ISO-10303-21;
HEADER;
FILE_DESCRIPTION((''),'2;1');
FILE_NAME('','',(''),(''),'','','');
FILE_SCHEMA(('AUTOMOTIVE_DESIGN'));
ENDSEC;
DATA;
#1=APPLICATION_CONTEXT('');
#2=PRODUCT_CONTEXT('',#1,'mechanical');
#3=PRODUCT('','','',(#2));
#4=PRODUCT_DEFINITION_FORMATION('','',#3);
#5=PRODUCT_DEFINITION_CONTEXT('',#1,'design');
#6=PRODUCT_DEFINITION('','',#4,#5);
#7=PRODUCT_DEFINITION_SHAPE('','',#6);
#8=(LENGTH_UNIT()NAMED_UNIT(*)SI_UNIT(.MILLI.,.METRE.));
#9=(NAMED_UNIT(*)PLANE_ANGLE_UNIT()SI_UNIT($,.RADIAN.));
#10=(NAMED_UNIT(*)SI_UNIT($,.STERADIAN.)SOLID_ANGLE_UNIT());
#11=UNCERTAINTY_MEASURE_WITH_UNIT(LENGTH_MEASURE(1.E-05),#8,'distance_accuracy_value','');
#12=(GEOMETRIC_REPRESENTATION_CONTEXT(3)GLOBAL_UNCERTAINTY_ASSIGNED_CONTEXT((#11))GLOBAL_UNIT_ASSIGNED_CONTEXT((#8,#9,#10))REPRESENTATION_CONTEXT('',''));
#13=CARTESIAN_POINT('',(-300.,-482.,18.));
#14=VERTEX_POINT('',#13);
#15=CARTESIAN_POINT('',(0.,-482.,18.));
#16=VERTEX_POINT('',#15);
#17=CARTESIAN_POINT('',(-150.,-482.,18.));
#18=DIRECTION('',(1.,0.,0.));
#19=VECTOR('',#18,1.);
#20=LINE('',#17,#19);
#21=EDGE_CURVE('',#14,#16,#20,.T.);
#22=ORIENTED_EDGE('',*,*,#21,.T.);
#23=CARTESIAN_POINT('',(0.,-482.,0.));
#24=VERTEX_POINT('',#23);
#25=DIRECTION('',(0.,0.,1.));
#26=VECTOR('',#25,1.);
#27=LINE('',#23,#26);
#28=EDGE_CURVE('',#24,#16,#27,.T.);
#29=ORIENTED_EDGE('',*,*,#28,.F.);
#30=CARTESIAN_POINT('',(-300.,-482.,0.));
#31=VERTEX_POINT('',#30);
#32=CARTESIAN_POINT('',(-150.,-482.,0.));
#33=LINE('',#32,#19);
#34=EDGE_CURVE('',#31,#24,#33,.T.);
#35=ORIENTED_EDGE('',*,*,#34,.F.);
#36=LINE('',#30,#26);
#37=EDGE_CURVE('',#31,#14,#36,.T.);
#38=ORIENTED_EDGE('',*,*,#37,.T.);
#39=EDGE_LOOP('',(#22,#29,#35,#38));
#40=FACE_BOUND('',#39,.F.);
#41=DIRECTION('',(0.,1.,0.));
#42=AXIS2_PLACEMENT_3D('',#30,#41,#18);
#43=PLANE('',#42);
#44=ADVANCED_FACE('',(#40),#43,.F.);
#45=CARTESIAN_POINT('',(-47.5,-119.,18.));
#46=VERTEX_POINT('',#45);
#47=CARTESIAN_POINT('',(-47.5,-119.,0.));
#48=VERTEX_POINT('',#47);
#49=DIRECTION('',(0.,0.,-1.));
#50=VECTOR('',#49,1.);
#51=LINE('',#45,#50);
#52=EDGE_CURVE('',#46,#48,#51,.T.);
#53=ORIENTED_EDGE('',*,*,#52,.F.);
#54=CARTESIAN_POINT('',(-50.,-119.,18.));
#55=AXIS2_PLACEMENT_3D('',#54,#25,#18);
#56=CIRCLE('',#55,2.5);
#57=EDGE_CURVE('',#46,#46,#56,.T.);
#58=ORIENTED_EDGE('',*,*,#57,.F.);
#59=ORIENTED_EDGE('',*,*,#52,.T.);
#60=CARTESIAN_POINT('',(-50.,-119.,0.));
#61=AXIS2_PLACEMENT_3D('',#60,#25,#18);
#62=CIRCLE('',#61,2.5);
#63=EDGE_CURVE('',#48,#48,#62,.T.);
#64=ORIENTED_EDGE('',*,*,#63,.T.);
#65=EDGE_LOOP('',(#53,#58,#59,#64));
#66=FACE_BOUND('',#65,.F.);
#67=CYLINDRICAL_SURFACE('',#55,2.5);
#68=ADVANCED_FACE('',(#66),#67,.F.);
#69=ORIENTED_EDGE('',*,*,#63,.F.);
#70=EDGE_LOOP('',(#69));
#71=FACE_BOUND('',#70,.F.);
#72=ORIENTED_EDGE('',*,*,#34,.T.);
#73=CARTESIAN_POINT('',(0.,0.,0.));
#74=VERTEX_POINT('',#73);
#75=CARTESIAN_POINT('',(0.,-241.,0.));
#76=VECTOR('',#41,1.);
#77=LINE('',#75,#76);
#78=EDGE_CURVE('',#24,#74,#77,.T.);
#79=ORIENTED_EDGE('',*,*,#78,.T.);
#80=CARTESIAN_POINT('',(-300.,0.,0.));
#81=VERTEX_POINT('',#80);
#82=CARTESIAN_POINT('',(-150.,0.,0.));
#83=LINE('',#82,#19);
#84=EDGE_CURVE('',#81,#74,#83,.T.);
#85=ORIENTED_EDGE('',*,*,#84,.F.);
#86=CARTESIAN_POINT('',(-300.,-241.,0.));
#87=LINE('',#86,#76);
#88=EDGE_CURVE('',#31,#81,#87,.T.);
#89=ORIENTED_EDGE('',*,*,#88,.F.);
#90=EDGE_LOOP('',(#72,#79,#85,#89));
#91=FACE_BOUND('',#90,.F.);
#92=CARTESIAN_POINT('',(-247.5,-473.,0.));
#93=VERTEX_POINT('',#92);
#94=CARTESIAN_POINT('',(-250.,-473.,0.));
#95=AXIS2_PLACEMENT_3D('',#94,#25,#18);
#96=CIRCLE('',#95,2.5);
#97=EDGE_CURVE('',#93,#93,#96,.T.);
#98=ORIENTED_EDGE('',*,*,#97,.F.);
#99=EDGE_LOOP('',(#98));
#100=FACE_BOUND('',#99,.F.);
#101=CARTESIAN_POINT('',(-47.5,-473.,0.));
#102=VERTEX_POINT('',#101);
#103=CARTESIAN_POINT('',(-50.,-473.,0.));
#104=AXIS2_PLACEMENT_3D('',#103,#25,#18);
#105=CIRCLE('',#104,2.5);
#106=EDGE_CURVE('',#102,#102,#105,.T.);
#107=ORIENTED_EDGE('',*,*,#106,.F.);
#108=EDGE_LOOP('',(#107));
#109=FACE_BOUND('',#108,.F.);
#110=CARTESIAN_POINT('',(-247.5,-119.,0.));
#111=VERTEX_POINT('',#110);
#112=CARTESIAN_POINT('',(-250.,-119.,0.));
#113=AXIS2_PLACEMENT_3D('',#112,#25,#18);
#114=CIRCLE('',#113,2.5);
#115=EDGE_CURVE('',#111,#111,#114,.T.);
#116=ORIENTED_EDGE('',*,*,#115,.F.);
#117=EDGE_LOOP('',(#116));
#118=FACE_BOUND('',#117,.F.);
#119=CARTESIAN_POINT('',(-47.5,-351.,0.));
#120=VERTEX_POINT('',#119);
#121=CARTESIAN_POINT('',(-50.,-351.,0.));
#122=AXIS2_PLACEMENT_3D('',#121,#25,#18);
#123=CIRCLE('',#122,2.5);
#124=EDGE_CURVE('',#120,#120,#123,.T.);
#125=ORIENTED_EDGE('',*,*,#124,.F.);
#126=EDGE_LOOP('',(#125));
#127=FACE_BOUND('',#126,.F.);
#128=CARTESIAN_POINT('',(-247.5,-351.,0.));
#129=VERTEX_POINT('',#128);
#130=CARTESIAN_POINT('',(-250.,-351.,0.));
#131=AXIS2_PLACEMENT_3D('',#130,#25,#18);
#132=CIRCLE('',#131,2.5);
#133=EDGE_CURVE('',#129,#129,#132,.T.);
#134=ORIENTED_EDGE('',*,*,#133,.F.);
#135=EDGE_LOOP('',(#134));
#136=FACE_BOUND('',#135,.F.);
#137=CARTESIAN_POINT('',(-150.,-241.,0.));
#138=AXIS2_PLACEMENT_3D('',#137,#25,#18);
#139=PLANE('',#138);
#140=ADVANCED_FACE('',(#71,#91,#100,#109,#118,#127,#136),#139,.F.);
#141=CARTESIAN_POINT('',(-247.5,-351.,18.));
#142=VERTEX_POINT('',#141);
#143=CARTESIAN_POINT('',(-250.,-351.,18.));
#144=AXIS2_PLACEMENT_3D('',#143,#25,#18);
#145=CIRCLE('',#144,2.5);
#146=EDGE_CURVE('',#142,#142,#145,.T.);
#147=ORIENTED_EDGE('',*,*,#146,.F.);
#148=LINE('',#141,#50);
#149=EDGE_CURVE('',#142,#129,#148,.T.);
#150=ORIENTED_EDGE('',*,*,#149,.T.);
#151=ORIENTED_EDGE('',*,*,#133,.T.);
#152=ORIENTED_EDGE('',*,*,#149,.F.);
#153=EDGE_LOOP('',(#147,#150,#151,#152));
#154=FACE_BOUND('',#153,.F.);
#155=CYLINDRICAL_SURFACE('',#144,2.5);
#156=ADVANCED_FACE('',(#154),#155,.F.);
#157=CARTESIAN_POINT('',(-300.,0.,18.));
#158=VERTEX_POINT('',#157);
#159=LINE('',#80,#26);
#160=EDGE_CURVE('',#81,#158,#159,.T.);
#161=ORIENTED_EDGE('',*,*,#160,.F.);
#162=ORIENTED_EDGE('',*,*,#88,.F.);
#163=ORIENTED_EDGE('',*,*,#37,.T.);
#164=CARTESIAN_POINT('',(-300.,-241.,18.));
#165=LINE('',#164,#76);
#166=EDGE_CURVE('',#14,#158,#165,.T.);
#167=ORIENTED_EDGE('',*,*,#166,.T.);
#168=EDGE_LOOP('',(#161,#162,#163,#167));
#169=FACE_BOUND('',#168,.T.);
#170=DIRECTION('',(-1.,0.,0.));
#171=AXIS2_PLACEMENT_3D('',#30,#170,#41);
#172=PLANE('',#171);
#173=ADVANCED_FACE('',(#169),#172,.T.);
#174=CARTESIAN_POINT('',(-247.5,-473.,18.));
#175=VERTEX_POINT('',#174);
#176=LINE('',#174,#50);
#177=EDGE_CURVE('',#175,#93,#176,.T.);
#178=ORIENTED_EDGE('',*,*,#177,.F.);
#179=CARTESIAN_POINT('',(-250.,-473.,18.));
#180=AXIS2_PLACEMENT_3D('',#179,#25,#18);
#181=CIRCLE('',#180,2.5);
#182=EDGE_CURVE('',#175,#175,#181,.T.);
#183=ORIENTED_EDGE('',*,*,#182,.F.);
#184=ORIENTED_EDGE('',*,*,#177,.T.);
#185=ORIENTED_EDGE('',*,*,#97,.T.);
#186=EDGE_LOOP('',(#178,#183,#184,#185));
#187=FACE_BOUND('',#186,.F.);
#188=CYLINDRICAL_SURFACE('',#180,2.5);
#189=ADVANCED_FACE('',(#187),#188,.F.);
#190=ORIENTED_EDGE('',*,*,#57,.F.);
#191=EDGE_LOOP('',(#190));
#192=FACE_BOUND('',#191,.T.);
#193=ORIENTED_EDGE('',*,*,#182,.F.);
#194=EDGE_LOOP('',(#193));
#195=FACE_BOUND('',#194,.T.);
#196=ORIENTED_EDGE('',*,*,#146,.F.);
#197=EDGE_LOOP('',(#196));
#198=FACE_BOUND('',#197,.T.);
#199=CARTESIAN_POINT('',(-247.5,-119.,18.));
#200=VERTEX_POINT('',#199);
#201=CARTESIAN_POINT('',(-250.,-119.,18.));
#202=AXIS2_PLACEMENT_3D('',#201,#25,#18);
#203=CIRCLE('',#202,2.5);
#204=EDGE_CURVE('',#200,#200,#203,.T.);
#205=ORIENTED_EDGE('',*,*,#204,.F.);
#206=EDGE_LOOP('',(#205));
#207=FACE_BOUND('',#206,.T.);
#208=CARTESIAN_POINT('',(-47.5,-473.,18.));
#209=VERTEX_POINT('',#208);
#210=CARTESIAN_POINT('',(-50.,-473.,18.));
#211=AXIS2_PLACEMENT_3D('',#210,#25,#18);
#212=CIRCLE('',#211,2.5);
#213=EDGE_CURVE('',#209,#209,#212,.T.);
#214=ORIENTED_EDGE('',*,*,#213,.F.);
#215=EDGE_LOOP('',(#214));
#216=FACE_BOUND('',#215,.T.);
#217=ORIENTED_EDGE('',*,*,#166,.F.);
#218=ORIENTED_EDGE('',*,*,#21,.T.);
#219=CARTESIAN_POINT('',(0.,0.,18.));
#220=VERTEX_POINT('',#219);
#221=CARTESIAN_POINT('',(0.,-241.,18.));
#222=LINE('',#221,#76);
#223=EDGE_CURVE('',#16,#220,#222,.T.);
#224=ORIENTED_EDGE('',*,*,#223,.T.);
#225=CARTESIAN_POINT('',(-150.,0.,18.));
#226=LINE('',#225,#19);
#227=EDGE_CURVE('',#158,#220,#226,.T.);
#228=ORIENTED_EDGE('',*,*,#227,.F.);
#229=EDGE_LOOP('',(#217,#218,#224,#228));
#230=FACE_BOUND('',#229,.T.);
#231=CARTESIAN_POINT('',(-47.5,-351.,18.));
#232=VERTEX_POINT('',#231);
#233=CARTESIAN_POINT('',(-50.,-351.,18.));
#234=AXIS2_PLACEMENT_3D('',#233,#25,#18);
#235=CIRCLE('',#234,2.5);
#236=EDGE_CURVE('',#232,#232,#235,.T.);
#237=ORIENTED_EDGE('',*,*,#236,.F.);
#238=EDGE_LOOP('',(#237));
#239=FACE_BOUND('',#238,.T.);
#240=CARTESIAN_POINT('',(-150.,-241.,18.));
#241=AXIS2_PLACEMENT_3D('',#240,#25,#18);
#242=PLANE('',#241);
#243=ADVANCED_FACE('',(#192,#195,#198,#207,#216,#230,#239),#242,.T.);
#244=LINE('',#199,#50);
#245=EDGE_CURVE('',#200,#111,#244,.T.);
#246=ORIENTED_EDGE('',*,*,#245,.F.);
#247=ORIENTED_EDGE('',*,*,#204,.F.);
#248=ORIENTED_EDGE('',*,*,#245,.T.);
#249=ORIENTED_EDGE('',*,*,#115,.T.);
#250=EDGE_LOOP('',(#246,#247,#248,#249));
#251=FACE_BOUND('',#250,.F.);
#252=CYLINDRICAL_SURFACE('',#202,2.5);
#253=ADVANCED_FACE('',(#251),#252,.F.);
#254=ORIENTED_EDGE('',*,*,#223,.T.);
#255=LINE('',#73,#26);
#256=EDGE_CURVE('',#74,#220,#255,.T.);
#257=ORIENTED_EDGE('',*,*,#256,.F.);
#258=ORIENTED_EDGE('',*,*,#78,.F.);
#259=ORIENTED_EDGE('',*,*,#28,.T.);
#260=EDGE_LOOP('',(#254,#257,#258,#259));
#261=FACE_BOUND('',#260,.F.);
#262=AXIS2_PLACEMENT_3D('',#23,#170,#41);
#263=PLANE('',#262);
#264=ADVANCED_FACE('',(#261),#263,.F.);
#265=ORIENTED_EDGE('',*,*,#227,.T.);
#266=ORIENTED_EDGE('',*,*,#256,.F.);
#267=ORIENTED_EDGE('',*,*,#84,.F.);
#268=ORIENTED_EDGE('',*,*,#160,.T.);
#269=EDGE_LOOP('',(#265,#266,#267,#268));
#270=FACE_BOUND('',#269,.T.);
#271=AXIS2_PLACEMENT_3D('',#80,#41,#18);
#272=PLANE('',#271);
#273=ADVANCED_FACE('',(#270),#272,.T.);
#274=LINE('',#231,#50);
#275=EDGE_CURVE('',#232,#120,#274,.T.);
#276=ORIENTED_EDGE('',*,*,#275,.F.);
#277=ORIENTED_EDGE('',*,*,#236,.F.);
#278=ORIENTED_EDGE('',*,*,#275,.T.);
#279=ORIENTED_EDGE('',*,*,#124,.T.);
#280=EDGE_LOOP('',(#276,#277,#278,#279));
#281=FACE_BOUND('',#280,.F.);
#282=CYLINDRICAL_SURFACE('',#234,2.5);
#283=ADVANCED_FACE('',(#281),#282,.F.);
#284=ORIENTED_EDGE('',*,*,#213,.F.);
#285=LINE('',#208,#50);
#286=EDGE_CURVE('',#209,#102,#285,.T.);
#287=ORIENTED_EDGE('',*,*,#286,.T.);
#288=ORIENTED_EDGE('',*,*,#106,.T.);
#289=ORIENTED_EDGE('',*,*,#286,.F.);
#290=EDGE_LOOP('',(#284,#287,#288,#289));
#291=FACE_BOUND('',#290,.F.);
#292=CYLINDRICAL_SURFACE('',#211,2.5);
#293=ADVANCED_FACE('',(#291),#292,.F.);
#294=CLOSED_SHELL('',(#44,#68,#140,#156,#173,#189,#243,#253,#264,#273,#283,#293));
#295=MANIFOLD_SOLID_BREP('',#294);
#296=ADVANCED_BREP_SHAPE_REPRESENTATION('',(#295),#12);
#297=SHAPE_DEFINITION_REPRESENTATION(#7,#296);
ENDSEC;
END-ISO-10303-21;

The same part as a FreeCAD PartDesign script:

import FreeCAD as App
import Part
import Sketcher


def add_polygon(sketch, points):
    """Adds a closed chain of lines whose ends are joined by coincident constraints."""
    first, n = sketch.GeometryCount, len(points)
    for a, b in zip(points, points[1:] + points[:1]):
        sketch.addGeometry(Part.LineSegment(App.Vector(*a, 0), App.Vector(*b, 0)), False)
    for i in range(n):
        sketch.addConstraint(Sketcher.Constraint("Coincident", first + i, 2, first + (i + 1) % n, 1))

doc = App.newDocument("Part")
body = doc.addObject("PartDesign::Body", "Body")

# Sketch on XY plane
sketch1 = doc.addObject("Sketcher::SketchObject", "Sketch")
body.addObject(sketch1)
sketch1.AttachmentSupport = (doc.XY_Plane, [""])
sketch1.MapMode = "FlatFace"
add_polygon(sketch1, [(-300, 0), (-300, -482), (0, -482), (0, 0)])  # lines 0-3
sketch1.addConstraint([
    Sketcher.Constraint("Vertical", 0),
    Sketcher.Constraint("Horizontal", 1),
    Sketcher.Constraint("Vertical", 2),
    Sketcher.Constraint("Horizontal", 3),
    Sketcher.Constraint("Coincident", 2, 2, -1, 1),
    Sketcher.Constraint("DistanceX", 1, 1, 1, 2, 300.0),
    Sketcher.Constraint("DistanceY", 0, 2, 0, 1, 482.0),
])
pad1 = doc.addObject("PartDesign::Pad", "Pad")
body.addObject(pad1)
pad1.Profile = sketch1
pad1.Length = 18

# Sketch on XY plane
sketch2 = doc.addObject("Sketcher::SketchObject", "Sketch001")
body.addObject(sketch2)
sketch2.AttachmentSupport = (doc.XY_Plane, [""])
sketch2.MapMode = "FlatFace"
sketch2.AttachmentOffset = App.Placement(App.Vector(0, 0, 18), App.Rotation())
sketch2.addGeometry([
    Part.Circle(App.Vector(-250, -119, 0), App.Vector(0, 0, 1), 2.5),  # 0
    Part.Circle(App.Vector(-50, -119, 0), App.Vector(0, 0, 1), 2.5),  # 1
    Part.Circle(App.Vector(-250, -351, 0), App.Vector(0, 0, 1), 2.5),  # 2
    Part.Circle(App.Vector(-50, -351, 0), App.Vector(0, 0, 1), 2.5),  # 3
    Part.Circle(App.Vector(-250, -473, 0), App.Vector(0, 0, 1), 2.5),  # 4
    Part.Circle(App.Vector(-50, -473, 0), App.Vector(0, 0, 1), 2.5),  # 5
], False)
sketch2.addConstraint([
    Sketcher.Constraint("Equal", 0, 1),
    Sketcher.Constraint("Equal", 1, 2),
    Sketcher.Constraint("Equal", 2, 3),
    Sketcher.Constraint("Equal", 3, 4),
    Sketcher.Constraint("Equal", 4, 5),
    Sketcher.Constraint("Horizontal", 0, 3, 1, 3),
    Sketcher.Constraint("Horizontal", 2, 3, 3, 3),
    Sketcher.Constraint("Horizontal", 4, 3, 5, 3),
    Sketcher.Constraint("Vertical", 0, 3, 2, 3),
    Sketcher.Constraint("Vertical", 1, 3, 3, 3),
    Sketcher.Constraint("Vertical", 2, 3, 4, 3),
    Sketcher.Constraint("Vertical", 3, 3, 5, 3),
    Sketcher.Constraint("Diameter", 0, 5.0),
    Sketcher.Constraint("DistanceX", 0, 3, -1, 1, 250.0),
    Sketcher.Constraint("DistanceY", 0, 3, -1, 1, 119.0),
    Sketcher.Constraint("DistanceX", 1, 3, -1, 1, 50.0),
    Sketcher.Constraint("DistanceY", 2, 3, -1, 1, 351.0),
    Sketcher.Constraint("DistanceY", 4, 3, -1, 1, 473.0),
])
pocket1 = doc.addObject("PartDesign::Pocket", "Pocket")
body.addObject(pocket1)
pocket1.Profile = sketch2
pocket1.Length = 18

doc.recompute()
